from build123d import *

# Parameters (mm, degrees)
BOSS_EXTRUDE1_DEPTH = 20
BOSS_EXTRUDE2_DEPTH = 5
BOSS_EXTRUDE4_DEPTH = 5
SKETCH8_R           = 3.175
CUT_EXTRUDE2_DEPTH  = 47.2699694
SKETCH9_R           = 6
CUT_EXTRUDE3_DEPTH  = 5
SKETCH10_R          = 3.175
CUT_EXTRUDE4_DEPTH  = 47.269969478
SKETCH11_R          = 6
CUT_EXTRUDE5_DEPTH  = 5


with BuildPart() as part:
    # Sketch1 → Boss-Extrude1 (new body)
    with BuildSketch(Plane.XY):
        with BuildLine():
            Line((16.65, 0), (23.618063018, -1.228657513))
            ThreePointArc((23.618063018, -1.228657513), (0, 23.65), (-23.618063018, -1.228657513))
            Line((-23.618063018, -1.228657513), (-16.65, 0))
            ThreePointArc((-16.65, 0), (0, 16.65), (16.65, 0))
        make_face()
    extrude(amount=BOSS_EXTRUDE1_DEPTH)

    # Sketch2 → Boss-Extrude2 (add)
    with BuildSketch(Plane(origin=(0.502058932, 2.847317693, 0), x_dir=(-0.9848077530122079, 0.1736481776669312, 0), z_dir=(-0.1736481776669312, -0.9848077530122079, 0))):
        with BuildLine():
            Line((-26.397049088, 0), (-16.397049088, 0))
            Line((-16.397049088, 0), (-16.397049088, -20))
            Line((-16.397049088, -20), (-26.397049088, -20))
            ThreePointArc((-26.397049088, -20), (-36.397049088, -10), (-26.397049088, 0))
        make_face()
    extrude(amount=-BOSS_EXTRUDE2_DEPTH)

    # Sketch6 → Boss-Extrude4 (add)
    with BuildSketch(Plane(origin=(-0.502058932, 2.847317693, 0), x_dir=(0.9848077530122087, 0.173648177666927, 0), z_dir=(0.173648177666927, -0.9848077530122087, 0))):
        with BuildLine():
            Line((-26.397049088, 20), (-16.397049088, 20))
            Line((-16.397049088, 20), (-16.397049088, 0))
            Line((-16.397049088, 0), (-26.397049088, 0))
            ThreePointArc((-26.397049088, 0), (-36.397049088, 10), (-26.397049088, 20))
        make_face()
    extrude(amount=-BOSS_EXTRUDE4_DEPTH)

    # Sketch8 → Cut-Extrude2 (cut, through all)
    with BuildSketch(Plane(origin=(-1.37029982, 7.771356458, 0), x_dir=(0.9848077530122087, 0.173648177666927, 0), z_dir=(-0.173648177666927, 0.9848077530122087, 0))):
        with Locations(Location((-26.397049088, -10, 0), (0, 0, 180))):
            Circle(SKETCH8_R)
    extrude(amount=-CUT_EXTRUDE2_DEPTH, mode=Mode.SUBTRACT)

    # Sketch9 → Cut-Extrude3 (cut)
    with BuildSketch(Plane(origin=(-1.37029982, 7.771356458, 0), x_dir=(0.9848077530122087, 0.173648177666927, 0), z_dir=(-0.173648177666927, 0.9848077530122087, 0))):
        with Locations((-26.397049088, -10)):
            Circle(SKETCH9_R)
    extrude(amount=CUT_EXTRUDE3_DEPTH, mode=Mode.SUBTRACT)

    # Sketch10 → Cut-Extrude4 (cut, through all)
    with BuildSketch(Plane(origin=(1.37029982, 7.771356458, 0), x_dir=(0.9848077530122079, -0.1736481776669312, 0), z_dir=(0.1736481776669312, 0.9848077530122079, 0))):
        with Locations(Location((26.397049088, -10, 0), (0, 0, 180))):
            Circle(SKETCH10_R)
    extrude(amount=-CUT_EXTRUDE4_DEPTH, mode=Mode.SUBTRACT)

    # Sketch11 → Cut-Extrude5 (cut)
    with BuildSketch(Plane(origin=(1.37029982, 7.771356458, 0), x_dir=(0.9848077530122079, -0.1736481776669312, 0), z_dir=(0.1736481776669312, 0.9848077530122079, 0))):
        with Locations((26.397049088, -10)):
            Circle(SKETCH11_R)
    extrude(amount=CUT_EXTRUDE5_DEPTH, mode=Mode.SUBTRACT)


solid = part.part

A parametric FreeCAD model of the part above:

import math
import FreeCAD as App
import Part
import Sketcher

V = App.Vector
Q = App.Units.Quantity

doc = App.newDocument("Part")
params = doc.addObject("Spreadsheet::Sheet", "Params")
for row, (alias, value) in enumerate([
    ("sketch1_radius", "23.65 mm"),
    ("sketch1_radius2", "16.65 mm"),
    ("pad1_length", "20 mm"),
    ("sketch2_radius", "10 mm"),
    ("sketch2_width", "10 mm"),
    ("pad2_length", "5 mm"),
    ("sketch3_radius", "10 mm"),
    ("sketch3_width", "10 mm"),
    ("pad3_length", "5 mm"),
    ("sketch4_diameter", "6.35 mm"),
    ("sketch5_diameter", "12 mm"),
    ("pocket2_length", "5 mm"),
    ("sketch6_diameter", "6.35 mm"),
    ("sketch7_diameter", "12 mm"),
    ("pocket4_length", "5 mm"),
], start=1):
    params.set(f"A{row}", alias)
    params.set(f"B{row}", "=" + value)
    params.setAlias(f"B{row}", alias)

body = doc.addObject("PartDesign::Body", "Body")

# Sketch on XY plane
sketch1 = body.newObject("Sketcher::SketchObject", "Sketch")
sketch1.AttachmentSupport = (doc.getObject("XY_Plane"), [""])
sketch1.MapMode = "FlatFace"
sketch1.addGeometry(Part.LineSegment(V(17, 0, 0), V(24, -1, 0)), False)
sketch1.addGeometry(Part.ArcOfCircle(Part.Circle(V(0, 0, 0), V(0, 0, 1), 24), math.radians(-3), math.radians(183)), False)
sketch1.addGeometry(Part.LineSegment(V(-24, -1, 0), V(-17, 0, 0)), False)
sketch1.addGeometry(Part.ArcOfCircle(Part.Circle(V(0, 0, 0), V(0, 0, 1), 17), math.radians(0), math.radians(180)), False)
sketch1.addConstraint(Sketcher.Constraint("Coincident", 0, 2, 1, 1))
sketch1.addConstraint(Sketcher.Constraint("Coincident", 1, 2, 2, 1))
sketch1.addConstraint(Sketcher.Constraint("Coincident", 2, 2, 3, 2))
sketch1.addConstraint(Sketcher.Constraint("Coincident", 3, 1, 0, 1))
sketch1.addConstraint(Sketcher.Constraint("Coincident", 1, 3, -1, 1))
sketch1.addConstraint(Sketcher.Constraint("Coincident", 3, 3, -1, 1))
sketch1.addConstraint(Sketcher.Constraint("PointOnObject", 2, 2, -1))
sketch1.addConstraint(Sketcher.Constraint("PointOnObject", 3, 1, -1))
sketch1.addConstraint(Sketcher.Constraint("Horizontal", 0, 2, 1, 2))
sketch1.addConstraint(Sketcher.Constraint("Angle", 0, Q("-10 deg")))
sketch1.addConstraint(Sketcher.Constraint("Radius", 1, Q("23.65 mm")))
sketch1.addConstraint(Sketcher.Constraint("Radius", 3, Q("16.65 mm")))
sketch1.setExpression("Constraints[10]", "Params.sketch1_radius")
sketch1.setExpression("Constraints[11]", "Params.sketch1_radius2")
pad1 = body.newObject("PartDesign::Pad", "Pad")
pad1.Profile = sketch1
pad1.setExpression("Length", "Params.pad1_length")

# Sketch on an angled plane
sketch2 = body.newObject("Sketcher::SketchObject", "Sketch001")
sketch2.Placement = App.Placement(V(0.502059, 2.847318, 0), App.Rotation(V(-0.984807753, 0.173648178, 0), V(0, 0, -1), V(-0.173648178, -0.984807753, 0), "ZXY"))
sketch2.addGeometry(Part.LineSegment(V(-16, 0, 0), V(-26, 0, 0)), False)
sketch2.addGeometry(Part.ArcOfCircle(Part.Circle(V(-26, -10, 0), V(0, 0, 1), 10), math.radians(90), math.radians(270)), False)
sketch2.addGeometry(Part.LineSegment(V(-26, -20, 0), V(-16, -20, 0)), False)
sketch2.addGeometry(Part.LineSegment(V(-16, -20, 0), V(-16, 0, 0)), False)
sketch2.addConstraint(Sketcher.Constraint("Tangent", 0, 2, 1, 1))
sketch2.addConstraint(Sketcher.Constraint("Tangent", 1, 2, 2, 1))
sketch2.addConstraint(Sketcher.Constraint("Coincident", 2, 2, 3, 1))
sketch2.addConstraint(Sketcher.Constraint("Coincident", 3, 2, 0, 1))
sketch2.addConstraint(Sketcher.Constraint("Horizontal", 0))
sketch2.addConstraint(Sketcher.Constraint("Horizontal", 2))
sketch2.addConstraint(Sketcher.Constraint("Vertical", 3))
sketch2.addConstraint(Sketcher.Constraint("PointOnObject", 0, 2, -1))
sketch2.addConstraint(Sketcher.Constraint("Radius", 1, Q("10 mm")))
sketch2.addConstraint(Sketcher.Constraint("DistanceX", 0, 2, 0, 1, Q("10 mm")))
sketch2.addConstraint(Sketcher.Constraint("DistanceX", 1, 3, -1, 1, Q("26.397049 mm")))
sketch2.setExpression("Constraints[8]", "Params.sketch2_radius")
sketch2.setExpression("Constraints[9]", "Params.sketch2_width")
pad2 = body.newObject("PartDesign::Pad", "Pad001")
pad2.Profile = sketch2
pad2.setExpression("Length", "Params.pad2_length")
pad2.Reversed = True

# Sketch on an angled plane
sketch3 = body.newObject("Sketcher::SketchObject", "Sketch002")
sketch3.Placement = App.Placement(V(-0.502059, 2.847318, 0), App.Rotation(V(0.984807753, 0.173648178, 0), V(0, 0, 1), V(0.173648178, -0.984807753, 0), "ZXY"))
sketch3.addGeometry(Part.LineSegment(V(-16, 20, 0), V(-26, 20, 0)), False)
sketch3.addGeometry(Part.ArcOfCircle(Part.Circle(V(-26, 10, 0), V(0, 0, 1), 10), math.radians(90), math.radians(270)), False)
sketch3.addGeometry(Part.LineSegment(V(-26, 0, 0), V(-16, 0, 0)), False)
sketch3.addGeometry(Part.LineSegment(V(-16, 0, 0), V(-16, 20, 0)), False)
sketch3.addConstraint(Sketcher.Constraint("Tangent", 0, 2, 1, 1))
sketch3.addConstraint(Sketcher.Constraint("Tangent", 1, 2, 2, 1))
sketch3.addConstraint(Sketcher.Constraint("Coincident", 2, 2, 3, 1))
sketch3.addConstraint(Sketcher.Constraint("Coincident", 3, 2, 0, 1))
sketch3.addConstraint(Sketcher.Constraint("Horizontal", 0))
sketch3.addConstraint(Sketcher.Constraint("Horizontal", 2))
sketch3.addConstraint(Sketcher.Constraint("Vertical", 3))
sketch3.addConstraint(Sketcher.Constraint("PointOnObject", 1, 2, -1))
sketch3.addConstraint(Sketcher.Constraint("Radius", 1, Q("10 mm")))
sketch3.addConstraint(Sketcher.Constraint("DistanceX", 0, 2, 0, 1, Q("10 mm")))
sketch3.addConstraint(Sketcher.Constraint("DistanceX", 1, 3, -1, 1, Q("26.397049 mm")))
sketch3.setExpression("Constraints[8]", "Params.sketch3_radius")
sketch3.setExpression("Constraints[9]", "Params.sketch3_width")
pad3 = body.newObject("PartDesign::Pad", "Pad002")
pad3.Profile = sketch3
pad3.setExpression("Length", "Params.pad3_length")
pad3.Reversed = True

# Sketch on an angled plane
sketch4 = body.newObject("Sketcher::SketchObject", "Sketch003")
sketch4.Placement = App.Placement(V(-1.3703, 7.771356, 0), App.Rotation(V(0.984807753, 0.173648178, 0), V(0, 0, -1), V(-0.173648178, 0.984807753, 0), "ZXY"))
sketch4.addGeometry(Part.Circle(V(-26.4, -10, 0), V(0, 0, 1), 3.2), False)
sketch4.addConstraint(Sketcher.Constraint("Diameter", 0, Q("6.35 mm")))
sketch4.addConstraint(Sketcher.Constraint("DistanceY", 0, 3, -1, 1, Q("10 mm")))
sketch4.addConstraint(Sketcher.Constraint("DistanceX", 0, 3, -1, 1, Q("26.397049 mm")))
sketch4.setExpression("Constraints[0]", "Params.sketch4_diameter")
pocket1 = body.newObject("PartDesign::Pocket", "Pocket")
pocket1.Profile = sketch4
pocket1.Type = "ThroughAll"

# Sketch on an angled plane
sketch5 = body.newObject("Sketcher::SketchObject", "Sketch004")
sketch5.Placement = App.Placement(V(-1.3703, 7.771356, 0), App.Rotation(V(0.984807753, 0.173648178, 0), V(0, 0, -1), V(-0.173648178, 0.984807753, 0), "ZXY"))
sketch5.addGeometry(Part.Circle(V(-26, -10, 0), V(0, 0, 1), 6), False)
sketch5.addConstraint(Sketcher.Constraint("Diameter", 0, Q("12 mm")))
sketch5.addConstraint(Sketcher.Constraint("DistanceY", 0, 3, -1, 1, Q("10 mm")))
sketch5.addConstraint(Sketcher.Constraint("DistanceX", 0, 3, -1, 1, Q("26.397049 mm")))
sketch5.setExpression("Constraints[0]", "Params.sketch5_diameter")
pocket2 = body.newObject("PartDesign::Pocket", "Pocket001")
pocket2.Profile = sketch5
pocket2.setExpression("Length", "Params.pocket2_length")
pocket2.Reversed = True

# Sketch on an angled plane
sketch6 = body.newObject("Sketcher::SketchObject", "Sketch005")
sketch6.Placement = App.Placement(V(1.3703, 7.771356, 0), App.Rotation(V(0.984807753, -0.173648178, 0), V(0, 0, -1), V(0.173648178, 0.984807753, 0), "ZXY"))
sketch6.addGeometry(Part.Circle(V(26.4, -10, 0), V(0, 0, 1), 3.2), False)
sketch6.addConstraint(Sketcher.Constraint("Diameter", 0, Q("6.35 mm")))
sketch6.addConstraint(Sketcher.Constraint("DistanceY", 0, 3, -1, 1, Q("10 mm")))
sketch6.addConstraint(Sketcher.Constraint("DistanceX", -1, 1, 0, 3, Q("26.397049 mm")))
sketch6.setExpression("Constraints[0]", "Params.sketch6_diameter")
pocket3 = body.newObject("PartDesign::Pocket", "Pocket002")
pocket3.Profile = sketch6
pocket3.Type = "ThroughAll"

# Sketch on an angled plane
sketch7 = body.newObject("Sketcher::SketchObject", "Sketch006")
sketch7.Placement = App.Placement(V(1.3703, 7.771356, 0), App.Rotation(V(0.984807753, -0.173648178, 0), V(0, 0, -1), V(0.173648178, 0.984807753, 0), "ZXY"))
sketch7.addGeometry(Part.Circle(V(26, -10, 0), V(0, 0, 1), 6), False)
sketch7.addConstraint(Sketcher.Constraint("Diameter", 0, Q("12 mm")))
sketch7.addConstraint(Sketcher.Constraint("DistanceY", 0, 3, -1, 1, Q("10 mm")))
sketch7.addConstraint(Sketcher.Constraint("DistanceX", -1, 1, 0, 3, Q("26.397049 mm")))
sketch7.setExpression("Constraints[0]", "Params.sketch7_diameter")
pocket4 = body.newObject("PartDesign::Pocket", "Pocket003")
pocket4.Profile = sketch7
pocket4.setExpression("Length", "Params.pocket4_length")
pocket4.Reversed = True

doc.recompute()
